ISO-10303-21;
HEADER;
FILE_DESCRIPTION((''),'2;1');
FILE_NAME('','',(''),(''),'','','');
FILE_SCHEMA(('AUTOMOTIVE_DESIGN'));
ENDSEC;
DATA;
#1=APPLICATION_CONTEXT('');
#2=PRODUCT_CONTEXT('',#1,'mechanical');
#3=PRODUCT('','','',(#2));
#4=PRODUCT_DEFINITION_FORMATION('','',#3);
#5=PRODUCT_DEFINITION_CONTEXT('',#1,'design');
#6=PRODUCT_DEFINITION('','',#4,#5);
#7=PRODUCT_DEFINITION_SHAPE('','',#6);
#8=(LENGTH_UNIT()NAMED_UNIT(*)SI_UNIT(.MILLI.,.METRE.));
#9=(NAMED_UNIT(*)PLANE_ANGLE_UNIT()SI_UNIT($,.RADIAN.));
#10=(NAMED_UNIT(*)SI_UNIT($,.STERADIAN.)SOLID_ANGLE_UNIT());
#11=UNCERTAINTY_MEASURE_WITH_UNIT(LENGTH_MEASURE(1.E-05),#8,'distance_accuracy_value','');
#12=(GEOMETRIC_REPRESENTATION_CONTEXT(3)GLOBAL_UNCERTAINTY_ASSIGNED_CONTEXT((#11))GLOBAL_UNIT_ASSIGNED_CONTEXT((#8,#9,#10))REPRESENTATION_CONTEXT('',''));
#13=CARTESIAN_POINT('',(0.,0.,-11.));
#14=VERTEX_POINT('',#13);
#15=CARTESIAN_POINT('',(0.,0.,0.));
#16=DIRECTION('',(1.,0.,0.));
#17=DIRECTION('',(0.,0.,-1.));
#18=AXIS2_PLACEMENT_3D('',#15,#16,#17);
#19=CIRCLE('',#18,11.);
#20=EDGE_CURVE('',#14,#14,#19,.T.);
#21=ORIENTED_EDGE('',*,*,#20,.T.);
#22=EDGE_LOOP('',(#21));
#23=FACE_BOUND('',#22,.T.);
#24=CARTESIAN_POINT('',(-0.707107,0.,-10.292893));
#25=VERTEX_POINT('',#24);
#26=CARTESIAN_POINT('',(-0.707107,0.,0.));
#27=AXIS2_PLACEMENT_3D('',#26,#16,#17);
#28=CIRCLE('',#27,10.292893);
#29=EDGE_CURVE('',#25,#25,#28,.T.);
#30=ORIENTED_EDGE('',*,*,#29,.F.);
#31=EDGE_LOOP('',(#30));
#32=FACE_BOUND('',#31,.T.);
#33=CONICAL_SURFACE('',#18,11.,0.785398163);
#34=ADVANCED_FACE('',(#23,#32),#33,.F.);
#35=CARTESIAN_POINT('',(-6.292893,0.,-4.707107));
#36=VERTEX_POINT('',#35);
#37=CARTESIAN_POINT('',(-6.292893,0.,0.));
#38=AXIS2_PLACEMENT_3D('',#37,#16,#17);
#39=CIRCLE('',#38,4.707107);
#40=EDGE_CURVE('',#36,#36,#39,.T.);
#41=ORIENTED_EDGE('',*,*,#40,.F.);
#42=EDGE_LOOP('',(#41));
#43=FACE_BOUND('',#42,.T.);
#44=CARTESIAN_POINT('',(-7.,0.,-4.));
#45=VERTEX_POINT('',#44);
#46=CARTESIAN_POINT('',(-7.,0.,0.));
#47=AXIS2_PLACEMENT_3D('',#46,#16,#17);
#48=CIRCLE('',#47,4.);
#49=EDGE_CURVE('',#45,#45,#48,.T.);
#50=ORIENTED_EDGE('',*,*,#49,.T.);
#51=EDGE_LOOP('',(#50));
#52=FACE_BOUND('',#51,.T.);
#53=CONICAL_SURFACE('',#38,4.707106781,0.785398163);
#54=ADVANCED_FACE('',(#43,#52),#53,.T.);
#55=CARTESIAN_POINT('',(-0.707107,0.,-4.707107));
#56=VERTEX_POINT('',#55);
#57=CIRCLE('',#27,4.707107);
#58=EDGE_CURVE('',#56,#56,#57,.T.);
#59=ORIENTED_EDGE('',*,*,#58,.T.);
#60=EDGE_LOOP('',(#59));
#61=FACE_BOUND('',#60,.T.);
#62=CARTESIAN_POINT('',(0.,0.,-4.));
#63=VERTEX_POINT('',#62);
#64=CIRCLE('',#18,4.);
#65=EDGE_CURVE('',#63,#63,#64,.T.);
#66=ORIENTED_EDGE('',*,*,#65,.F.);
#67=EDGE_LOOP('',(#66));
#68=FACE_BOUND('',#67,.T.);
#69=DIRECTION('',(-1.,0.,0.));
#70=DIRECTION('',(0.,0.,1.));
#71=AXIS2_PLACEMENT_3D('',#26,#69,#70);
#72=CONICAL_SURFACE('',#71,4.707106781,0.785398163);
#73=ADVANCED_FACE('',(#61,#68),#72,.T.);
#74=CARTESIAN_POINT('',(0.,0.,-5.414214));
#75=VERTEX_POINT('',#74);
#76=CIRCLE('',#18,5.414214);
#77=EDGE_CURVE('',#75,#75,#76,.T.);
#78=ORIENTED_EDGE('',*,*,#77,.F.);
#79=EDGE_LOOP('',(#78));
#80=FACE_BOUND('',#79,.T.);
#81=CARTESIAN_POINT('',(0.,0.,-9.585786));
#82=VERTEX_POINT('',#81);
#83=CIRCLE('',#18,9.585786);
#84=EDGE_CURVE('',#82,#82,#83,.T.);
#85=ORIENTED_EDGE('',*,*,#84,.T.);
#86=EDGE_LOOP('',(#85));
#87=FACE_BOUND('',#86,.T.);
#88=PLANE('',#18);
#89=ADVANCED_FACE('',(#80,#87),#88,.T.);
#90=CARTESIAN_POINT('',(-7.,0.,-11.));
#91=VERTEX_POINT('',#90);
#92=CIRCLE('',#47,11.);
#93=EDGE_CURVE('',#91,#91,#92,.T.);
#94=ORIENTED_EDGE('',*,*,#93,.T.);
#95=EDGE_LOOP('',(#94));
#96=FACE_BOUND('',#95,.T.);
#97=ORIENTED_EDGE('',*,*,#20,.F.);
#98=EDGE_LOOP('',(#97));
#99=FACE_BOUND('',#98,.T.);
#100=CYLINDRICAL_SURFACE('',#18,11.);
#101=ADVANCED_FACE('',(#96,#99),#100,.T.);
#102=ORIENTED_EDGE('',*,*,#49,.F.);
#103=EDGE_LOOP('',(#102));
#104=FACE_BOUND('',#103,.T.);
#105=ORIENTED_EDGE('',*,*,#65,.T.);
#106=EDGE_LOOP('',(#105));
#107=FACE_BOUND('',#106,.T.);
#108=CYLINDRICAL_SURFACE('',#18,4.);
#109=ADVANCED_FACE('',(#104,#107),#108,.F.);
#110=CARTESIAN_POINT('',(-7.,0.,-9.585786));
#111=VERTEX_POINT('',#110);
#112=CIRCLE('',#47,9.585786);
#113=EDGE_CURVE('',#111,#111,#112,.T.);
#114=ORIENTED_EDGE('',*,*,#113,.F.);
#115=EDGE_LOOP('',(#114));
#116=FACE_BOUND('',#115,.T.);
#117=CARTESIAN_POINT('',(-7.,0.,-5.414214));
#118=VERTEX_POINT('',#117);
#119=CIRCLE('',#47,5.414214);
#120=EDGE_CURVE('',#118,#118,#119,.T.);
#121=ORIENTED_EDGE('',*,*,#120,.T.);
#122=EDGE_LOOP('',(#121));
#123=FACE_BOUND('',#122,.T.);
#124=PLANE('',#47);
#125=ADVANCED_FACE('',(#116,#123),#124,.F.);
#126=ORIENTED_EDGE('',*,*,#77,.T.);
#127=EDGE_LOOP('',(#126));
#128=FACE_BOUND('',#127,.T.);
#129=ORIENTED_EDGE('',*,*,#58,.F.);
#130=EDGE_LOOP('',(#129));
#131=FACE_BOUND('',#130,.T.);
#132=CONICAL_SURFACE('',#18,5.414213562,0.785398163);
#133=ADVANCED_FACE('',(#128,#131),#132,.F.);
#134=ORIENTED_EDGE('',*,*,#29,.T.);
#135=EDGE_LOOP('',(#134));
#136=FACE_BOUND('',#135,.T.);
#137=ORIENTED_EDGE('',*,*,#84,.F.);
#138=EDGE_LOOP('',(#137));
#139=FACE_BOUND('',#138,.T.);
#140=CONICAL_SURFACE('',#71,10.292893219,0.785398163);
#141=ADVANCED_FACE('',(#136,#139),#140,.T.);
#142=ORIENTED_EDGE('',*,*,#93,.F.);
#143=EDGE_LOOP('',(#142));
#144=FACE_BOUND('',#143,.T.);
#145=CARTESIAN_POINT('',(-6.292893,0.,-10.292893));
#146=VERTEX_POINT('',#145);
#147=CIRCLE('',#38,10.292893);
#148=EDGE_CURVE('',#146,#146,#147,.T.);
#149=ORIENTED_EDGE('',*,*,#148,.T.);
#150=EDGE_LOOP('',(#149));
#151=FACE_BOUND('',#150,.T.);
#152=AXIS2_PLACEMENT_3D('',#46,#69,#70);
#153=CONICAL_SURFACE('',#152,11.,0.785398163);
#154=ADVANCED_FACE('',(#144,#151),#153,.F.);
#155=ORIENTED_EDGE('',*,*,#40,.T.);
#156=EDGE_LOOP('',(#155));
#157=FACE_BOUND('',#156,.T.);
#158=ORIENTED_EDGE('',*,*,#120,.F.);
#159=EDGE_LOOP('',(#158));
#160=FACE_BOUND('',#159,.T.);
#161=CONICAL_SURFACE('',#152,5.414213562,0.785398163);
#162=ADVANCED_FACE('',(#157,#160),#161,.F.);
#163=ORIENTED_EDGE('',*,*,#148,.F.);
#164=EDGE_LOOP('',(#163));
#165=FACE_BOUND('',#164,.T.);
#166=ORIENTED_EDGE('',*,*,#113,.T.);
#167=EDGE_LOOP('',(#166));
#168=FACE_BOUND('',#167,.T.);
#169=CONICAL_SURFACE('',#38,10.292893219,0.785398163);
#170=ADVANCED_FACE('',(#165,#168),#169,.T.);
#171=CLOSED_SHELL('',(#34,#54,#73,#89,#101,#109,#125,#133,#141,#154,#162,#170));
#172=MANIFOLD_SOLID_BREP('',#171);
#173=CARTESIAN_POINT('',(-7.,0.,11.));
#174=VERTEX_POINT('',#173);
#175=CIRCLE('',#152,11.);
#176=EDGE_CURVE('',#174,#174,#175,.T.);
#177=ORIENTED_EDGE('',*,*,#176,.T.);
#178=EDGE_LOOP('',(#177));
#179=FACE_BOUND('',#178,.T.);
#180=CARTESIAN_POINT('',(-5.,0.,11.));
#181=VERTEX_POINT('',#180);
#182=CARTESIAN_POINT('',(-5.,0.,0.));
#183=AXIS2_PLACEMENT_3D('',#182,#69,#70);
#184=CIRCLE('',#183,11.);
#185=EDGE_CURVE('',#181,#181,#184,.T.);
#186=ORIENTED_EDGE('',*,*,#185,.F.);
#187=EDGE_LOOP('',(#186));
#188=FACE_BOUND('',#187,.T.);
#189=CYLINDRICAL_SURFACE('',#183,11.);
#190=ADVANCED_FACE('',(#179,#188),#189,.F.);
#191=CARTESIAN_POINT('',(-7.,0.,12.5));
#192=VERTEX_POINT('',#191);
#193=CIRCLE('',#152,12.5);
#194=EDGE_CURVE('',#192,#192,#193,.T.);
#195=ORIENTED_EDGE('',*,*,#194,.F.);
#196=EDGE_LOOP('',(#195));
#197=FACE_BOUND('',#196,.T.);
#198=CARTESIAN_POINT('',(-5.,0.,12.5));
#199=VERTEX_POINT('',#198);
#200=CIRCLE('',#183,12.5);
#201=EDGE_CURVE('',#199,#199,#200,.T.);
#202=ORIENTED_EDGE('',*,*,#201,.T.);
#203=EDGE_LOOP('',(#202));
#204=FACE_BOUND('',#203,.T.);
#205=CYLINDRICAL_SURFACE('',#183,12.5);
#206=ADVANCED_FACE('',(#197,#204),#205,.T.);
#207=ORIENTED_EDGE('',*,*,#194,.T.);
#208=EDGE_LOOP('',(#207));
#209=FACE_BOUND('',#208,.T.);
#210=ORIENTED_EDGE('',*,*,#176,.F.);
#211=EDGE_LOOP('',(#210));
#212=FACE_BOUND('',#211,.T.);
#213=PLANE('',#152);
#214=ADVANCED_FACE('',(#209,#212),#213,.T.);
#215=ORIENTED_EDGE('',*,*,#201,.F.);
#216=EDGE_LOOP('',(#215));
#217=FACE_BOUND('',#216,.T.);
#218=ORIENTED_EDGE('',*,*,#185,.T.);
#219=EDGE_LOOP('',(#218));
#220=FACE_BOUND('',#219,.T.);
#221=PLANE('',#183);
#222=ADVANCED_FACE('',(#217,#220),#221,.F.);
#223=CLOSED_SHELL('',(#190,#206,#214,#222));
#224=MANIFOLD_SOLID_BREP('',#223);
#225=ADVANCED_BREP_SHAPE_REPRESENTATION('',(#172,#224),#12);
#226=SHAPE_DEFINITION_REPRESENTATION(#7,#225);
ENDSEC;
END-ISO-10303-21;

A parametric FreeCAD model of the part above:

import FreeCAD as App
import Part
import Sketcher

V = App.Vector
Q = App.Units.Quantity

doc = App.newDocument("Part")
body = doc.addObject("PartDesign::Body", "Body")

sketch1 = body.newObject("Sketcher::SketchObject", "Sketch")
sketch1.AttachmentSupport = (doc.getObject("XZ_Plane"), [""])
sketch1.MapMode = "FlatFace"
sketch1.addGeometry(Part.LineSegment(V(0, 4, 0), V(-7, 4, 0)), False)
sketch1.addGeometry(Part.LineSegment(V(-7, 4, 0), V(-6.292893, 4.707107, 0)), False)
sketch1.addGeometry(Part.LineSegment(V(-6.292893, 4.707107, 0), V(-7, 5.414214, 0)), False)
sketch1.addGeometry(Part.LineSegment(V(-7, 5.414214, 0), V(-7, 9.585786, 0)), False)
sketch1.addGeometry(Part.LineSegment(V(-7, 9.585786, 0), V(-6.292893, 10.292893, 0)), False)
sketch1.addGeometry(Part.LineSegment(V(-6.292893, 10.292893, 0), V(-7, 11, 0)), False)
sketch1.addGeometry(Part.LineSegment(V(-7, 11, 0), V(0, 11, 0)), False)
sketch1.addGeometry(Part.LineSegment(V(0, 11, 0), V(-0.707107, 10.292893, 0)), False)
sketch1.addGeometry(Part.LineSegment(V(-0.707107, 10.292893, 0), V(0, 9.585786, 0)), False)
sketch1.addGeometry(Part.LineSegment(V(0, 9.585786, 0), V(0, 5.414214, 0)), False)
sketch1.addGeometry(Part.LineSegment(V(0, 5.414214, 0), V(-0.707107, 4.707107, 0)), False)
sketch1.addGeometry(Part.LineSegment(V(-0.707107, 4.707107, 0), V(0, 4, 0)), False)
sketch1.addConstraint(Sketcher.Constraint("Coincident", 0, 2, 1, 1))
sketch1.addConstraint(Sketcher.Constraint("Coincident", 1, 2, 2, 1))
sketch1.addConstraint(Sketcher.Constraint("Coincident", 2, 2, 3, 1))
sketch1.addConstraint(Sketcher.Constraint("Coincident", 3, 2, 4, 1))
sketch1.addConstraint(Sketcher.Constraint("Coincident", 4, 2, 5, 1))
sketch1.addConstraint(Sketcher.Constraint("Coincident", 5, 2, 6, 1))
sketch1.addConstraint(Sketcher.Constraint("Coincident", 6, 2, 7, 1))
sketch1.addConstraint(Sketcher.Constraint("Coincident", 7, 2, 8, 1))
sketch1.addConstraint(Sketcher.Constraint("Coincident", 8, 2, 9, 1))
sketch1.addConstraint(Sketcher.Constraint("Coincident", 9, 2, 10, 1))
sketch1.addConstraint(Sketcher.Constraint("Coincident", 10, 2, 11, 1))
sketch1.addConstraint(Sketcher.Constraint("Coincident", 11, 2, 0, 1))
sketch1.addConstraint(Sketcher.Constraint("Horizontal", 0))
sketch1.addConstraint(Sketcher.Constraint("Vertical", 3))
sketch1.addConstraint(Sketcher.Constraint("Horizontal", 6))
sketch1.addConstraint(Sketcher.Constraint("Vertical", 9))
sketch1.addConstraint(Sketcher.Constraint("PointOnObject", 6, 2, -2))
sketch1.addConstraint(Sketcher.Constraint("PointOnObject", 8, 2, -2))
sketch1.addConstraint(Sketcher.Constraint("PointOnObject", 11, 2, -2))
sketch1.addConstraint(Sketcher.Constraint("Perpendicular", 1, 2))
sketch1.addConstraint(Sketcher.Constraint("Perpendicular", 2, 4))
sketch1.addConstraint(Sketcher.Constraint("Perpendicular", 4, 5))
sketch1.addConstraint(Sketcher.Constraint("Perpendicular", 5, 7))
sketch1.addConstraint(Sketcher.Constraint("Perpendicular", 7, 8))
sketch1.addConstraint(Sketcher.Constraint("Perpendicular", 8, 10))
sketch1.addConstraint(Sketcher.Constraint("Perpendicular", 10, 11))
sketch1.addConstraint(Sketcher.Constraint("Horizontal", 4, 2, 7, 2))
sketch1.addConstraint(Sketcher.Constraint("Horizontal", 3, 2, 8, 2))
sketch1.addConstraint(Sketcher.Constraint("Horizontal", 2, 2, 9, 2))
sketch1.addConstraint(Sketcher.Constraint("Horizontal", 1, 2, 10, 2))
sketch1.addConstraint(Sketcher.Constraint("Vertical", 0, 2, 2, 2))
sketch1.addConstraint(Sketcher.Constraint("Vertical", 1, 2, 4, 2))
sketch1.addConstraint(Sketcher.Constraint("DistanceX", 0, 2, 0, 1, Q("7 mm")))
sketch1.addConstraint(Sketcher.Constraint("Distance", 1, Q("1 mm")))
sketch1.addConstraint(Sketcher.Constraint("DistanceY", -1, 1, 0, 2, Q("4 mm")))
sketch1.addConstraint(Sketcher.Constraint("DistanceY", -1, 1, 5, 2, Q("11 mm")))
revolution = body.newObject("PartDesign::Revolution", "Revolution")
revolution.Profile = sketch1
revolution.ReferenceAxis = (sketch1, ["H_Axis"])
revolution.Angle = 360
body2 = doc.addObject("PartDesign::Body", "Body001")

sketch2 = body2.newObject("Sketcher::SketchObject", "Sketch001")
sketch2.AttachmentSupport = (doc.getObject("YZ_Plane001"), [""])
sketch2.MapMode = "FlatFace"
sketch2.AttachmentOffset = App.Placement(V(0, 0, -7), App.Rotation())
sketch2.addGeometry(Part.Circle(V(0, 0, 0), V(0, 0, 1), 12.5), False)
sketch2.addGeometry(Part.Circle(V(0, 0, 0), V(0, 0, 1), 11), False)
sketch2.addConstraint(Sketcher.Constraint("Coincident", 0, 3, -1, 1))
sketch2.addConstraint(Sketcher.Constraint("Coincident", 1, 3, -1, 1))
sketch2.addConstraint(Sketcher.Constraint("Diameter", 0, Q("25 mm")))
sketch2.addConstraint(Sketcher.Constraint("Diameter", 1, Q("22 mm")))
pad1 = body2.newObject("PartDesign::Pad", "Pad")
pad1.Profile = sketch2
pad1.Length = 2

doc.recompute()
